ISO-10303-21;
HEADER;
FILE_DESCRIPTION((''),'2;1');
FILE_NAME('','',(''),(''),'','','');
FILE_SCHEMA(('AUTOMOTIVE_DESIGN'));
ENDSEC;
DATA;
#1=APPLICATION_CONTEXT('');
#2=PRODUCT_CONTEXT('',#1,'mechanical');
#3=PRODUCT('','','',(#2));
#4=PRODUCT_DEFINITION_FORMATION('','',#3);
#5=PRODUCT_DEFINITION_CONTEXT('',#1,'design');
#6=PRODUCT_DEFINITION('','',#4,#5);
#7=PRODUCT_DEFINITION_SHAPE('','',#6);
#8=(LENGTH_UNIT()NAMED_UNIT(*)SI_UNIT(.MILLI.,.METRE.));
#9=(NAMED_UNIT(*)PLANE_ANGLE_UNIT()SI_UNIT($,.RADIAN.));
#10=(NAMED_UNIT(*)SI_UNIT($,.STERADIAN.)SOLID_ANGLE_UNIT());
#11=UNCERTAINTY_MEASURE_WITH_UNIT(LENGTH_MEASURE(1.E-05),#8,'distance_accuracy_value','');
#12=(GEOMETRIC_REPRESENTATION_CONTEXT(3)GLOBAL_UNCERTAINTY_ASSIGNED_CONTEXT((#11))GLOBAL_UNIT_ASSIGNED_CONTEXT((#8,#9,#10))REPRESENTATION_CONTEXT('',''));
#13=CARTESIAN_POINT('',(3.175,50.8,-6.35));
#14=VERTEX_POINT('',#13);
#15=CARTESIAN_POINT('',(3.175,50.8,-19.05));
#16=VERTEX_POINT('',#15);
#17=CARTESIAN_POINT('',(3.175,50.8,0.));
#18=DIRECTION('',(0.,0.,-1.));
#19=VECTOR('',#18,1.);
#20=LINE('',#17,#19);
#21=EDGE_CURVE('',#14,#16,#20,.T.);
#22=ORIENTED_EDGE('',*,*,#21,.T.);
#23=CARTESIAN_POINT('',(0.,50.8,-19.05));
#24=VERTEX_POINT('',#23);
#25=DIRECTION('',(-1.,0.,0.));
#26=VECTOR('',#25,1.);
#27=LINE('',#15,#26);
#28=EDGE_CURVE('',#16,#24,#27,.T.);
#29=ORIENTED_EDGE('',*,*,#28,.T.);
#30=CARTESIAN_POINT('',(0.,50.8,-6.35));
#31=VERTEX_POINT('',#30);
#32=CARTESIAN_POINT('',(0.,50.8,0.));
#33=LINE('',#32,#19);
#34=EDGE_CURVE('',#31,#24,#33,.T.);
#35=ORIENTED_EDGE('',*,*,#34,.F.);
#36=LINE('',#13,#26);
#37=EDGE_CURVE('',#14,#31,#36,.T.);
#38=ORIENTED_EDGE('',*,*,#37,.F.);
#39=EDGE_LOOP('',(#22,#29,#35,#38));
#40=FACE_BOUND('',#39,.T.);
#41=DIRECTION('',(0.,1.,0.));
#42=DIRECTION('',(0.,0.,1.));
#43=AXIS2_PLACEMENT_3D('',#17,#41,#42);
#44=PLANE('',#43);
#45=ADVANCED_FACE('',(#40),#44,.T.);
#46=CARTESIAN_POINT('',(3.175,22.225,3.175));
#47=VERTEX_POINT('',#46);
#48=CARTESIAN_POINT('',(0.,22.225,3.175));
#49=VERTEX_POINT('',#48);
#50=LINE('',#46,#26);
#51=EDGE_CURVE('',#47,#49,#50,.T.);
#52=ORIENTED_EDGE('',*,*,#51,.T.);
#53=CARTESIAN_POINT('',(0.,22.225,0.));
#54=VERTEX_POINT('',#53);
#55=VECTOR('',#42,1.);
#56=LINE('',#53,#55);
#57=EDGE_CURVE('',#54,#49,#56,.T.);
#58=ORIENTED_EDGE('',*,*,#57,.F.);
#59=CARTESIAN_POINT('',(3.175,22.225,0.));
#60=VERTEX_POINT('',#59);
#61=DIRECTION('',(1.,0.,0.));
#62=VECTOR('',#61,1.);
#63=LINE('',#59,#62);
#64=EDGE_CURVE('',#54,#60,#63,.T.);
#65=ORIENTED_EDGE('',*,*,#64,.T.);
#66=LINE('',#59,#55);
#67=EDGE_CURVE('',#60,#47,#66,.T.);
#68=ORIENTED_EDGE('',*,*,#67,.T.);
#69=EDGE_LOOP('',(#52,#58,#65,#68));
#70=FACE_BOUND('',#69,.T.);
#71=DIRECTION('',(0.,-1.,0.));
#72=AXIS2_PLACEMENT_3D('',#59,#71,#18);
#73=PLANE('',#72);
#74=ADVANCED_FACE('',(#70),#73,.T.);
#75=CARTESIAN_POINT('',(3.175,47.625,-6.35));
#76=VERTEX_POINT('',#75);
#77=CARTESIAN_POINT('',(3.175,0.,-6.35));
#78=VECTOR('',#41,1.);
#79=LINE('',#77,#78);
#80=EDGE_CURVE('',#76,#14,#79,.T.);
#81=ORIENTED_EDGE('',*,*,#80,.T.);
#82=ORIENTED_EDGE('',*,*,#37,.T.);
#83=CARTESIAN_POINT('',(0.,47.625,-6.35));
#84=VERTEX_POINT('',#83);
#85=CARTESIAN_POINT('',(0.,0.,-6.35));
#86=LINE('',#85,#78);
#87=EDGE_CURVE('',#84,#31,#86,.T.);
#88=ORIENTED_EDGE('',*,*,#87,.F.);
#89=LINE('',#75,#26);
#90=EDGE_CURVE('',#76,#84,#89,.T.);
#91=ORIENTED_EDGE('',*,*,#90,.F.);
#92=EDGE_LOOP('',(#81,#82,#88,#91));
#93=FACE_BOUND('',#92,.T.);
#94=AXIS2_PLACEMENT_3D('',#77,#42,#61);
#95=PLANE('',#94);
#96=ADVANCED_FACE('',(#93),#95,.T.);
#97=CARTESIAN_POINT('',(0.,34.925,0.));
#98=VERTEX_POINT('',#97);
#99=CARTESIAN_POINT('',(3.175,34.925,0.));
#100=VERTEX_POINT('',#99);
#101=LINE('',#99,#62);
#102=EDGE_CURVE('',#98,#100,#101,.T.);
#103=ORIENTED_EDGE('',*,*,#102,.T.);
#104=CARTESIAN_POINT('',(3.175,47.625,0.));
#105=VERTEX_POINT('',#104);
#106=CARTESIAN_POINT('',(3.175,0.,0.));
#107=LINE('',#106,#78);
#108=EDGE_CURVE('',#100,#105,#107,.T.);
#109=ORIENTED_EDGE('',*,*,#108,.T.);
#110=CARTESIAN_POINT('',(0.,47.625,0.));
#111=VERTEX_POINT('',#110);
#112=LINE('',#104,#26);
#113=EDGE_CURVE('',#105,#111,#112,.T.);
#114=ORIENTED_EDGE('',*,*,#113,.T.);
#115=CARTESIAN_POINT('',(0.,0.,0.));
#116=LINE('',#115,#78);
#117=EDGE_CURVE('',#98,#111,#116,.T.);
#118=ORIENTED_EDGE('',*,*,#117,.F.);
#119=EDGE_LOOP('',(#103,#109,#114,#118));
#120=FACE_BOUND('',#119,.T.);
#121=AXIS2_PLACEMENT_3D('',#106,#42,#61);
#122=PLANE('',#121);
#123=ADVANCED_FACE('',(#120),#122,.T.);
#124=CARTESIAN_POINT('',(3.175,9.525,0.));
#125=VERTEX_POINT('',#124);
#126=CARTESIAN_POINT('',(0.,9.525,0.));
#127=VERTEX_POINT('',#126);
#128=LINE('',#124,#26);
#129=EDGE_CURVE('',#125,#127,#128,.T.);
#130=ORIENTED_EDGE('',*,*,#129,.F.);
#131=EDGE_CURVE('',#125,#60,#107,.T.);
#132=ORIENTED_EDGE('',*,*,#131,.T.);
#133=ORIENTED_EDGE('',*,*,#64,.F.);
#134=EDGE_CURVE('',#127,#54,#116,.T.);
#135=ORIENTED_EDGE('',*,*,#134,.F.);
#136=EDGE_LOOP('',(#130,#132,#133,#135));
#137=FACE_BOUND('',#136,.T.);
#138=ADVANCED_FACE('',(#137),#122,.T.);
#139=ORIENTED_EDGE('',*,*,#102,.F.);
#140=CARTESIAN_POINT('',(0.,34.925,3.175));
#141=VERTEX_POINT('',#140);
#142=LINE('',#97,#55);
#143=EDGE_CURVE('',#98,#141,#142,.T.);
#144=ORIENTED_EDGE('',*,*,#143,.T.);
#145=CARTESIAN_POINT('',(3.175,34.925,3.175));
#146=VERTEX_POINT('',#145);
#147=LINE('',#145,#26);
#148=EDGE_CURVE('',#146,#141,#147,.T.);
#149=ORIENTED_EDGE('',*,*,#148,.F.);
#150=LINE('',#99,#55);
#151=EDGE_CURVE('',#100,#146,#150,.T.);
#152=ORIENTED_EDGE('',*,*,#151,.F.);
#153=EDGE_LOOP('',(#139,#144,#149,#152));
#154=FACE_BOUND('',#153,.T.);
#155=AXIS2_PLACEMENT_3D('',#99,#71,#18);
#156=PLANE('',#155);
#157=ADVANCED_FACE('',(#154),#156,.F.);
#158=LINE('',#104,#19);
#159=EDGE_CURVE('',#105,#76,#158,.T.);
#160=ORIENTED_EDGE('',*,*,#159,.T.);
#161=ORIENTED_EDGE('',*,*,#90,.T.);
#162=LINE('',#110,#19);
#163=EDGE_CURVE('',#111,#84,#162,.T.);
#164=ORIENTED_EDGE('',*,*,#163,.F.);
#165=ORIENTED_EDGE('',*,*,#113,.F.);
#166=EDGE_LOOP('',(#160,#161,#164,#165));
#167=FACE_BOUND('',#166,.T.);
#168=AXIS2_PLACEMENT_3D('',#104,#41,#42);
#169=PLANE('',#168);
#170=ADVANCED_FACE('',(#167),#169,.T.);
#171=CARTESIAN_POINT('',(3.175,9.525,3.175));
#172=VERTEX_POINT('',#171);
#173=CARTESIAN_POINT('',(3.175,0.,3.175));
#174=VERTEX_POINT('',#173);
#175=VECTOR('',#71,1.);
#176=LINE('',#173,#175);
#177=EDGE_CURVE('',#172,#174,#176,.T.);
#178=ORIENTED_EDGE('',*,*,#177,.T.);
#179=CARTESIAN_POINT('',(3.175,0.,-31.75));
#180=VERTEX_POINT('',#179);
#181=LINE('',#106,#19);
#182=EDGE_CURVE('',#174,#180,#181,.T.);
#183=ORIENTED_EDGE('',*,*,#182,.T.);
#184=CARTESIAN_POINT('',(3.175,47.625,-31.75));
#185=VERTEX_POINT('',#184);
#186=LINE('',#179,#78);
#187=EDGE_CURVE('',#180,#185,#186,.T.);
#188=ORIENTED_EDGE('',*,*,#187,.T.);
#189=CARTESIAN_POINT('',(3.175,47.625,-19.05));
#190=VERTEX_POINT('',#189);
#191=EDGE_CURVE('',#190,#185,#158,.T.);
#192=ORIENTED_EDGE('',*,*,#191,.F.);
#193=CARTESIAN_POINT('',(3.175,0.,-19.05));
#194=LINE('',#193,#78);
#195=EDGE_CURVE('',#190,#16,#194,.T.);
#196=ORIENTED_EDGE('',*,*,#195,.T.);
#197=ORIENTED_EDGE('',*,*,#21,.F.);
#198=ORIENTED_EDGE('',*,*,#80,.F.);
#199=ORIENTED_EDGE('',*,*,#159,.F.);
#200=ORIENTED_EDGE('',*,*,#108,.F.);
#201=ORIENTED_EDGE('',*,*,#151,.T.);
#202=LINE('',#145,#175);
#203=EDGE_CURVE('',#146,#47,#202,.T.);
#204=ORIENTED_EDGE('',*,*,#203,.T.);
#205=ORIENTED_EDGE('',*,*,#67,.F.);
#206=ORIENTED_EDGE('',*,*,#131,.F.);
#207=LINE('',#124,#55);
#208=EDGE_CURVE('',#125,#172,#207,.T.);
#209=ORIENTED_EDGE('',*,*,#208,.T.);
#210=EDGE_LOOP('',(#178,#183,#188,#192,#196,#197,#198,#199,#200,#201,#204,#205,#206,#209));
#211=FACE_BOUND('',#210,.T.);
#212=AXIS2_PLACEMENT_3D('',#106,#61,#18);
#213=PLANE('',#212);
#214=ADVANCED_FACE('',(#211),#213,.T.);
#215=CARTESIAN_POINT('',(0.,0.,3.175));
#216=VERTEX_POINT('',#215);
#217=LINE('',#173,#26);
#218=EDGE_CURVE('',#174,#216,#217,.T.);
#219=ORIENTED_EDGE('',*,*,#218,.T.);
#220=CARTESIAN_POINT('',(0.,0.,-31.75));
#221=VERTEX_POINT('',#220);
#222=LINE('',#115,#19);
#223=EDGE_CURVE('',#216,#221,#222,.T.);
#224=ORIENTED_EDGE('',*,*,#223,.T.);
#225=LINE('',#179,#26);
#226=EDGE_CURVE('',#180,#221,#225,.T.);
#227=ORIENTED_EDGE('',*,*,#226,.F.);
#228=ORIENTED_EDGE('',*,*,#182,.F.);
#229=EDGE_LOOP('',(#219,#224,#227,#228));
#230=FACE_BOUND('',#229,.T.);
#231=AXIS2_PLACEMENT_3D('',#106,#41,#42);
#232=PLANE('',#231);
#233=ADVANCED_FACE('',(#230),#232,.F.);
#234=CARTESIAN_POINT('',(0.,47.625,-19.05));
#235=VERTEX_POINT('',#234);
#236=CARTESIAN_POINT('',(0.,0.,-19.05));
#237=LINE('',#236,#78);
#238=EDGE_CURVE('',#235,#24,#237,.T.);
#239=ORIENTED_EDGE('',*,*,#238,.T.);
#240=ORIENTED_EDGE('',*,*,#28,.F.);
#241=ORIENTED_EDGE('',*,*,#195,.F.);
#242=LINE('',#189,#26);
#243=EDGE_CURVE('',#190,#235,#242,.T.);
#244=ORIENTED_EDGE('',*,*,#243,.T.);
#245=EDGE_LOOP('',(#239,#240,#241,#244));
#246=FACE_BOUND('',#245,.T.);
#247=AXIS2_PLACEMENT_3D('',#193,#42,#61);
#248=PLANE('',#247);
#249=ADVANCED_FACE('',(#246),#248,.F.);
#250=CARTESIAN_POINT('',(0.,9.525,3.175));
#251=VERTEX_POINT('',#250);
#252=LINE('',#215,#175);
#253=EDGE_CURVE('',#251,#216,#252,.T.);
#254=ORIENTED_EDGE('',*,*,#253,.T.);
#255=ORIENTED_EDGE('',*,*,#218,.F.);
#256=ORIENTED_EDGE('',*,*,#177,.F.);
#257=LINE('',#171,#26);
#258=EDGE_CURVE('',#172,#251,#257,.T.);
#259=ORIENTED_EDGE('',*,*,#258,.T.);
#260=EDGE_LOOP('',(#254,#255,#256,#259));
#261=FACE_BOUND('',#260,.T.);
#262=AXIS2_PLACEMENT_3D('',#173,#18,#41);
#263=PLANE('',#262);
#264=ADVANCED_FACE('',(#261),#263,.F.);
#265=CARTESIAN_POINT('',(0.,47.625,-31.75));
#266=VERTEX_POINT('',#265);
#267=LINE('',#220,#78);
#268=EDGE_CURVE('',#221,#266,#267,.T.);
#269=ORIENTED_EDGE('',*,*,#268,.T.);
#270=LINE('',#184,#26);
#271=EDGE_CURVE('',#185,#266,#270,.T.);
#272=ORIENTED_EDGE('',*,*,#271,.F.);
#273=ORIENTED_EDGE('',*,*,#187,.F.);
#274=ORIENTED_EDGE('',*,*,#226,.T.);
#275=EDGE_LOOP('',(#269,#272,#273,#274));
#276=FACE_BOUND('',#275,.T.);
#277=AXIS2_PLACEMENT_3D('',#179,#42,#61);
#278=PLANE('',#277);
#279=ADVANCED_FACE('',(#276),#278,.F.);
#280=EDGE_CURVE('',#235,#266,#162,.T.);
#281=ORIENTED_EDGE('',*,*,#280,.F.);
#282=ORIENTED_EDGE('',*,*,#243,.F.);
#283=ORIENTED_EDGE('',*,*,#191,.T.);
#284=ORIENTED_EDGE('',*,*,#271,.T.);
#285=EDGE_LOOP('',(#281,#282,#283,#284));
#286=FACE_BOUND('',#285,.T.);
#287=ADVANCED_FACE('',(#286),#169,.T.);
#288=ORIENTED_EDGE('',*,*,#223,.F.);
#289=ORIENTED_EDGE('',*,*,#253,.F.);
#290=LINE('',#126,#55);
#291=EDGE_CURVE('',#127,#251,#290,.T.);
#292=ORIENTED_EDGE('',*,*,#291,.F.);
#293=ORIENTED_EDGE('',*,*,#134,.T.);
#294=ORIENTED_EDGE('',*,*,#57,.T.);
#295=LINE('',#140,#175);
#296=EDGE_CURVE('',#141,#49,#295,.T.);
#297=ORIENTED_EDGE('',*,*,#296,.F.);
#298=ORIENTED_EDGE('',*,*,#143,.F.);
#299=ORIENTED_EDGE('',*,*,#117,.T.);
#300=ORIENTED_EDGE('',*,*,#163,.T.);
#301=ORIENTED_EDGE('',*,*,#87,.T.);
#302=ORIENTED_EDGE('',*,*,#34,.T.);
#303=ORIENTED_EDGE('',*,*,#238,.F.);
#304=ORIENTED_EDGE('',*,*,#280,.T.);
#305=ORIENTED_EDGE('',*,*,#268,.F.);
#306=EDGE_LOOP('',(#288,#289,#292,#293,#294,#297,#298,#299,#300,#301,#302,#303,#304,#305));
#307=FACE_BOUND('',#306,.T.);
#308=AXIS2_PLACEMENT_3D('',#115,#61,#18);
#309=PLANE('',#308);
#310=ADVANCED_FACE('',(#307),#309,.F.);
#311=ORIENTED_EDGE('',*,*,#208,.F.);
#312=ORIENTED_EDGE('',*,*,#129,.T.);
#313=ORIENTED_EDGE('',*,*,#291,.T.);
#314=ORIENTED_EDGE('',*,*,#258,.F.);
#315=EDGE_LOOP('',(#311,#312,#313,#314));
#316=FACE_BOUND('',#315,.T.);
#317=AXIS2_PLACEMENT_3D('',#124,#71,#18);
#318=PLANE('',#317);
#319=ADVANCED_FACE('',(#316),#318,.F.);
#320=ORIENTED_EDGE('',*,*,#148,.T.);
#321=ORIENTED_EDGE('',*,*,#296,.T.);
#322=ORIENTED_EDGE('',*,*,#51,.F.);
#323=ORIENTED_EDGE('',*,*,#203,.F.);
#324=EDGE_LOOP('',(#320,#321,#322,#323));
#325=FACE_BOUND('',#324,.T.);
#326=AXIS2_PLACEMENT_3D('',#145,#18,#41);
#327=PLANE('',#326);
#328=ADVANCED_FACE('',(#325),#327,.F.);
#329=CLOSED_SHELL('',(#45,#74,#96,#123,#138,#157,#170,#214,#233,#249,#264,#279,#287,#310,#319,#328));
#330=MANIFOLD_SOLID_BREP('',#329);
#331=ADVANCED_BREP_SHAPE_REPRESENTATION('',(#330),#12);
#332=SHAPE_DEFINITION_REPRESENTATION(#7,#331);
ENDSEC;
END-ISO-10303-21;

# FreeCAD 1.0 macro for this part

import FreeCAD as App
import Part
import Sketcher
from FreeCAD import Vector
Q = App.Units.Quantity


def add_polygon(sketch, points):
    """Adds a closed chain of lines whose ends are joined by coincident constraints."""
    first, n = sketch.GeometryCount, len(points)
    for a, b in zip(points, points[1:] + points[:1]):
        sketch.addGeometry(Part.LineSegment(App.Vector(*a, 0), App.Vector(*b, 0)), False)
    for i in range(n):
        sketch.addConstraint(Sketcher.Constraint("Coincident", first + i, 2, first + (i + 1) % n, 1))

doc = App.newDocument("Part")
body = doc.addObject("PartDesign::Body", "Body")

sketch1 = doc.addObject("Sketcher::SketchObject", "Sketch")
body.addObject(sketch1)
sketch1.AttachmentSupport = (doc.YZ_Plane, [""])
sketch1.MapMode = "FlatFace"
add_polygon(sketch1, [(22.2, 0), (9.5, 0), (9.5, 3.2), (0, 3.2), (0, -31.8), (47.6, -31.8), (47.6, -19.1), (50.8, -19.1), (50.8, -6.3), (47.6, -6.3), (47.6, 0), (34.9, 0), (34.9, 3.2), (22.2, 3.2)])
sketch1.addConstraint(Sketcher.Constraint("Horizontal", 0))
sketch1.addConstraint(Sketcher.Constraint("Vertical", 1))
sketch1.addConstraint(Sketcher.Constraint("Horizontal", 2))
sketch1.addConstraint(Sketcher.Constraint("Vertical", 3))
sketch1.addConstraint(Sketcher.Constraint("Horizontal", 4))
sketch1.addConstraint(Sketcher.Constraint("Vertical", 5))
sketch1.addConstraint(Sketcher.Constraint("Horizontal", 6))
sketch1.addConstraint(Sketcher.Constraint("Vertical", 7))
sketch1.addConstraint(Sketcher.Constraint("Horizontal", 8))
sketch1.addConstraint(Sketcher.Constraint("Vertical", 9))
sketch1.addConstraint(Sketcher.Constraint("Horizontal", 10))
sketch1.addConstraint(Sketcher.Constraint("Vertical", 11))
sketch1.addConstraint(Sketcher.Constraint("Horizontal", 12))
sketch1.addConstraint(Sketcher.Constraint("Vertical", 13))
sketch1.addConstraint(Sketcher.Constraint("PointOnObject", 0, 2, -1))
sketch1.addConstraint(Sketcher.Constraint("PointOnObject", 2, 2, -2))
sketch1.addConstraint(Sketcher.Constraint("PointOnObject", 9, 2, -1))
sketch1.addConstraint(Sketcher.Constraint("Horizontal", 2, 2, 11, 2))
sketch1.addConstraint(Sketcher.Constraint("Vertical", 5, 2, 8, 2))
sketch1.addConstraint(Sketcher.Constraint("Equal", 0, 10))
sketch1.addConstraint(Sketcher.Constraint("Equal", 10, 12))
sketch1.addConstraint(Sketcher.Constraint("Equal", 8, 1))
sketch1.addConstraint(Sketcher.Constraint("Equal", 12, 5))
sketch1.addConstraint(Sketcher.Constraint("Equal", 5, 7))
sketch1.addConstraint(Sketcher.Constraint("DistanceX", 0, 2, 0, 1, Q("0.5 in")))
sketch1.addConstraint(Sketcher.Constraint("DistanceX", -1, 1, 6, 2, Q("2 in")))
sketch1.addConstraint(Sketcher.Constraint("DistanceY", 9, 1, 9, 2, Q("0.25 in")))
sketch1.addConstraint(Sketcher.Constraint("DistanceX", 2, 2, 2, 1, Q("0.375 in")))
pad1 = doc.addObject("PartDesign::Pad", "Pad")
body.addObject(pad1)
pad1.Profile = sketch1
pad1.Length = Q("0.125 in")

doc.recompute()
